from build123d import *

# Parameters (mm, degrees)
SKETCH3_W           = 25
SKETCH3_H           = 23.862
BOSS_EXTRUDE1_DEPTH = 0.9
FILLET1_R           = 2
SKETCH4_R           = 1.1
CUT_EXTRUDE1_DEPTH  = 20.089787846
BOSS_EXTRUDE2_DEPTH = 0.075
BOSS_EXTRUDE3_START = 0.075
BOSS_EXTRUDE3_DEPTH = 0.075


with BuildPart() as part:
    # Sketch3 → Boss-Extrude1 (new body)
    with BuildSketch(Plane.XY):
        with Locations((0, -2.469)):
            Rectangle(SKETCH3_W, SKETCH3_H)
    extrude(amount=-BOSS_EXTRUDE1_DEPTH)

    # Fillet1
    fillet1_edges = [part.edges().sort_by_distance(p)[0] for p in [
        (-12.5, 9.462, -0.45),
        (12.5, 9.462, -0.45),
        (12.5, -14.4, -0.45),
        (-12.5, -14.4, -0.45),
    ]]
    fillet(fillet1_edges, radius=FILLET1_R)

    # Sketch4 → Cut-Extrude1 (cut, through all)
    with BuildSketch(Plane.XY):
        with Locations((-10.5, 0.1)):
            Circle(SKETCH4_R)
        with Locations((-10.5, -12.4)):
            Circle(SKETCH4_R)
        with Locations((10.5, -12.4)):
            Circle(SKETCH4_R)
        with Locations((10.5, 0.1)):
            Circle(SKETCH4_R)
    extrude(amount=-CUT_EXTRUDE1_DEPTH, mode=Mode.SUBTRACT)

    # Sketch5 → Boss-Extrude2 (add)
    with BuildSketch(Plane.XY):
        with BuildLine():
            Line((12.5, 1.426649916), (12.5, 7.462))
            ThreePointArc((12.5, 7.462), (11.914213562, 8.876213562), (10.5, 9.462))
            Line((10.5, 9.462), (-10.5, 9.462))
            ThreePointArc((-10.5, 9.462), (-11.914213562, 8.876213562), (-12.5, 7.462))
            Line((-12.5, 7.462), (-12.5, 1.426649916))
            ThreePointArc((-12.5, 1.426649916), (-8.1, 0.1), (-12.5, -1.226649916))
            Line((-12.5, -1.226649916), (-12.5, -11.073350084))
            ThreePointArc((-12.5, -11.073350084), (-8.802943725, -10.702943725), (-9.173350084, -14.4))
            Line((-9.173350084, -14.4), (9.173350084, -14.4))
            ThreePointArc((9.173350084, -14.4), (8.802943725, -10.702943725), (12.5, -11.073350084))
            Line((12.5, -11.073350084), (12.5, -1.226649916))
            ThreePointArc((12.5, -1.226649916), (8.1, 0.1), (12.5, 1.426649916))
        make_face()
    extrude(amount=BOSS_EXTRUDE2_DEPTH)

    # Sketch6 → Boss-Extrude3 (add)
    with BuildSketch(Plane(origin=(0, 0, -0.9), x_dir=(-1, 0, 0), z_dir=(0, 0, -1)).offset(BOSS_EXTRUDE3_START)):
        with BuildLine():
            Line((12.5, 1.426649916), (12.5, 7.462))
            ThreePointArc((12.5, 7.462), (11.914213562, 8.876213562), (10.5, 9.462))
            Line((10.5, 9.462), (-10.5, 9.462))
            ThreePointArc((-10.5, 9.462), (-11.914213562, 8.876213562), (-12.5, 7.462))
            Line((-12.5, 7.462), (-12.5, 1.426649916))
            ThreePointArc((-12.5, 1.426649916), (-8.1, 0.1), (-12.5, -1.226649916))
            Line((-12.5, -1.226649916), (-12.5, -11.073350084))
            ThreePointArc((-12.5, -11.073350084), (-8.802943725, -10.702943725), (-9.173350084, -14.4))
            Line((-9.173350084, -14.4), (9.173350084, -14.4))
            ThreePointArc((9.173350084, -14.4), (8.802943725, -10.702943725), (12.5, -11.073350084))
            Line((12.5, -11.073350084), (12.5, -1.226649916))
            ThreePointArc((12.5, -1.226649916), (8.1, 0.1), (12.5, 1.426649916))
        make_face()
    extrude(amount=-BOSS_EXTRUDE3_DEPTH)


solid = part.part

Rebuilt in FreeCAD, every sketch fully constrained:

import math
import FreeCAD as App
import Part
import Sketcher
from FreeCAD import Vector


def edges_at(feature, points):
    """Names of the edges that pass closest to the given points."""
    edges = feature.Shape.Edges
    near = lambda p: min(range(len(edges)), key=lambda i: edges[i].distToShape(Part.Vertex(*p))[0])
    return sorted({f"Edge{near(p) + 1}" for p in points})

doc = App.newDocument("Part")
params = doc.addObject("Spreadsheet::Sheet", "Params")
for row, (alias, value) in enumerate([
    ("sketch1_width", "25 mm"),
    ("pad1_length", "0.9 mm"),
    ("fillet_radius", "2 mm"),
    ("sketch2_diameter", "2.2 mm"),
    ("sketch3_radius", "2 mm"),
    ("sketch3_radius2", "2.4 mm"),
    ("sketch3_width", "21 mm"),
    ("sketch3_height", "2 mm"),
    ("pad2_length", "0.075 mm"),
    ("sketch4_radius", "2 mm"),
    ("sketch4_radius2", "2.4 mm"),
    ("sketch4_width", "21 mm"),
    ("sketch4_height", "2 mm"),
    ("pad3_length", "0.075 mm"),
], start=1):
    params.set(f"A{row}", alias)
    params.set(f"B{row}", "=" + value)
    params.setAlias(f"B{row}", alias)

body = doc.addObject("PartDesign::Body", "Body")

# Sketch on XY plane
sketch1 = body.newObject("Sketcher::SketchObject", "Sketch")
sketch1.AttachmentSupport = (doc.getObject("XY_Plane"), [""])
sketch1.MapMode = "FlatFace"
sketch1.addGeometry(Part.LineSegment(Vector(-12, 9, 0), Vector(-12, -14, 0)), False)
sketch1.addGeometry(Part.LineSegment(Vector(-12, -14, 0), Vector(12, -14, 0)), False)
sketch1.addGeometry(Part.LineSegment(Vector(12, -14, 0), Vector(12, 9, 0)), False)
sketch1.addGeometry(Part.LineSegment(Vector(12, 9, 0), Vector(-12, 9, 0)), False)
sketch1.addConstraint(Sketcher.Constraint("Coincident", 0, 2, 1, 1))
sketch1.addConstraint(Sketcher.Constraint("Coincident", 1, 2, 2, 1))
sketch1.addConstraint(Sketcher.Constraint("Coincident", 2, 2, 3, 1))
sketch1.addConstraint(Sketcher.Constraint("Coincident", 3, 2, 0, 1))
sketch1.addConstraint(Sketcher.Constraint("Vertical", 0))
sketch1.addConstraint(Sketcher.Constraint("Horizontal", 1))
sketch1.addConstraint(Sketcher.Constraint("Vertical", 2))
sketch1.addConstraint(Sketcher.Constraint("Horizontal", 3))
sketch1.addConstraint(Sketcher.Constraint("DistanceX", 1, 1, 1, 2, 25.0))
sketch1.addConstraint(Sketcher.Constraint("DistanceX", 0, 2, -1, 1, 12.5))
sketch1.addConstraint(Sketcher.Constraint("DistanceY", 0, 2, -1, 1, 14.4))
sketch1.addConstraint(Sketcher.Constraint("DistanceY", 0, 2, 0, 1, 23.862))
sketch1.setExpression("Constraints[8]", "Params.sketch1_width")
pad1 = body.newObject("PartDesign::Pad", "Pad")
pad1.Profile = sketch1
pad1.setExpression("Length", "Params.pad1_length")
pad1.Reversed = True
doc.recompute()

fillet = body.newObject("PartDesign::Fillet", "Fillet")
fillet.Base = (pad1, edges_at(pad1, [
    (-12.5, 9.462, -0.45),
    (12.5, 9.462, -0.45),
    (12.5, -14.4, -0.45),
    (-12.5, -14.4, -0.45),
]))
fillet.setExpression("Radius", "Params.fillet_radius")

# Sketch on XY plane
sketch2 = body.newObject("Sketcher::SketchObject", "Sketch001")
sketch2.AttachmentSupport = (doc.getObject("XY_Plane"), [""])
sketch2.MapMode = "FlatFace"
sketch2.addGeometry(Part.Circle(Vector(-10.5, 0.1, 0), Vector(0, 0, 1), 1.1), False)
sketch2.addGeometry(Part.Circle(Vector(-10.5, -12.4, 0), Vector(0, 0, 1), 1.1), False)
sketch2.addGeometry(Part.Circle(Vector(10.5, -12.4, 0), Vector(0, 0, 1), 1.1), False)
sketch2.addGeometry(Part.Circle(Vector(10.5, 0.1, 0), Vector(0, 0, 1), 1.1), False)
sketch2.addConstraint(Sketcher.Constraint("Equal", 0, 1))
sketch2.addConstraint(Sketcher.Constraint("Equal", 1, 2))
sketch2.addConstraint(Sketcher.Constraint("Equal", 2, 3))
sketch2.addConstraint(Sketcher.Constraint("Symmetric", 1, 3, 2, 3, -2))
sketch2.addConstraint(Sketcher.Constraint("Symmetric", 0, 3, 3, 3, -2))
sketch2.addConstraint(Sketcher.Constraint("Vertical", 0, 3, 1, 3))
sketch2.addConstraint(Sketcher.Constraint("Diameter", 0, 2.2))
sketch2.addConstraint(Sketcher.Constraint("DistanceX", 1, 3, 2, 3, 21.0))
sketch2.addConstraint(Sketcher.Constraint("DistanceY", -1, 1, 0, 3, 0.1))
sketch2.addConstraint(Sketcher.Constraint("DistanceY", 1, 3, -1, 1, 12.4))
sketch2.setExpression("Constraints[6]", "Params.sketch2_diameter")
pocket1 = body.newObject("PartDesign::Pocket", "Pocket")
pocket1.Profile = sketch2
pocket1.Type = "ThroughAll"

# Sketch on XY plane
sketch3 = body.newObject("Sketcher::SketchObject", "Sketch002")
sketch3.AttachmentSupport = (doc.getObject("XY_Plane"), [""])
sketch3.MapMode = "FlatFace"
sketch3.addGeometry(Part.LineSegment(Vector(12.5, 1.4, 0), Vector(12.5, 7.5, 0)), False)
sketch3.addGeometry(Part.ArcOfCircle(Part.Circle(Vector(10.5, 7.5, 0), Vector(0, 0, 1), 2), math.radians(0), math.radians(90)), False)
sketch3.addGeometry(Part.LineSegment(Vector(10.5, 9.5, 0), Vector(-10.5, 9.5, 0)), False)
sketch3.addGeometry(Part.ArcOfCircle(Part.Circle(Vector(-10.5, 7.5, 0), Vector(0, 0, 1), 2), math.radians(90), math.radians(180)), False)
sketch3.addGeometry(Part.LineSegment(Vector(-12.5, 7.5, 0), Vector(-12.5, 1.4, 0)), False)
sketch3.addGeometry(Part.ArcOfCircle(Part.Circle(Vector(-10.5, 0.1, 0), Vector(0, 0, 1), 2.4), math.radians(-146), math.radians(146)), False)
sketch3.addGeometry(Part.LineSegment(Vector(-12.5, -1.2, 0), Vector(-12.5, -11.1, 0)), False)
sketch3.addGeometry(Part.ArcOfCircle(Part.Circle(Vector(-10.5, -12.4, 0), Vector(0, 0, 1), 2.4), math.radians(-56), math.radians(146)), False)
sketch3.addGeometry(Part.LineSegment(Vector(-9.2, -14.4, 0), Vector(9.2, -14.4, 0)), False)
sketch3.addGeometry(Part.ArcOfCircle(Part.Circle(Vector(10.5, -12.4, 0), Vector(0, 0, 1), 2.4), math.radians(34), math.radians(236)), False)
sketch3.addGeometry(Part.LineSegment(Vector(12.5, -11.1, 0), Vector(12.5, -1.2, 0)), False)
sketch3.addGeometry(Part.ArcOfCircle(Part.Circle(Vector(10.5, 0.1, 0), Vector(0, 0, 1), 2.4), math.radians(34), math.radians(326)), False)
sketch3.addConstraint(Sketcher.Constraint("Tangent", 0, 2, 1, 1))
sketch3.addConstraint(Sketcher.Constraint("Tangent", 1, 2, 2, 1))
sketch3.addConstraint(Sketcher.Constraint("Tangent", 2, 2, 3, 1))
sketch3.addConstraint(Sketcher.Constraint("Tangent", 3, 2, 4, 1))
sketch3.addConstraint(Sketcher.Constraint("Coincident", 4, 2, 5, 2))
sketch3.addConstraint(Sketcher.Constraint("Coincident", 5, 1, 6, 1))
sketch3.addConstraint(Sketcher.Constraint("Coincident", 6, 2, 7, 2))
sketch3.addConstraint(Sketcher.Constraint("Coincident", 7, 1, 8, 1))
sketch3.addConstraint(Sketcher.Constraint("Coincident", 8, 2, 9, 2))
sketch3.addConstraint(Sketcher.Constraint("Coincident", 9, 1, 10, 1))
sketch3.addConstraint(Sketcher.Constraint("Coincident", 10, 2, 11, 2))
sketch3.addConstraint(Sketcher.Constraint("Coincident", 11, 1, 0, 1))
sketch3.addConstraint(Sketcher.Constraint("Vertical", 0))
sketch3.addConstraint(Sketcher.Constraint("Horizontal", 2))
sketch3.addConstraint(Sketcher.Constraint("Vertical", 4))
sketch3.addConstraint(Sketcher.Constraint("Vertical", 6))
sketch3.addConstraint(Sketcher.Constraint("Horizontal", 8))
sketch3.addConstraint(Sketcher.Constraint("Vertical", 10))
sketch3.addConstraint(Sketcher.Constraint("Equal", 1, 3))
sketch3.addConstraint(Sketcher.Constraint("Equal", 5, 7))
sketch3.addConstraint(Sketcher.Constraint("Equal", 7, 9))
sketch3.addConstraint(Sketcher.Constraint("Equal", 9, 11))
sketch3.addConstraint(Sketcher.Constraint("Symmetric", 7, 3, 9, 3, -2))
sketch3.addConstraint(Sketcher.Constraint("Symmetric", 5, 3, 11, 3, -2))
sketch3.addConstraint(Sketcher.Constraint("Horizontal", 6, 2, 9, 1))
sketch3.addConstraint(Sketcher.Constraint("Horizontal", 4, 2, 11, 1))
sketch3.addConstraint(Sketcher.Constraint("Vertical", 3, 3, 5, 3))
sketch3.addConstraint(Sketcher.Constraint("Vertical", 5, 3, 7, 3))
sketch3.addConstraint(Sketcher.Constraint("Vertical", 4, 2, 5, 1))
sketch3.addConstraint(Sketcher.Constraint("Radius", 1, 2.0))
sketch3.addConstraint(Sketcher.Constraint("Radius", 5, 2.4))
sketch3.addConstraint(Sketcher.Constraint("DistanceX", 2, 2, 2, 1, 21.0))
sketch3.addConstraint(Sketcher.Constraint("DistanceY", 7, 1, 7, 3, 2.0))
sketch3.addConstraint(Sketcher.Constraint("DistanceY", -1, 1, 5, 3, 0.1))
sketch3.addConstraint(Sketcher.Constraint("DistanceY", 7, 3, -1, 1, 12.4))
sketch3.addConstraint(Sketcher.Constraint("DistanceY", -1, 1, 1, 3, 7.462))
sketch3.setExpression("Constraints[29]", "Params.sketch3_radius")
sketch3.setExpression("Constraints[30]", "Params.sketch3_radius2")
sketch3.setExpression("Constraints[31]", "Params.sketch3_width")
sketch3.setExpression("Constraints[32]", "Params.sketch3_height")
pad2 = body.newObject("PartDesign::Pad", "Pad001")
pad2.Profile = sketch3
pad2.setExpression("Length", "Params.pad2_length")

# Sketch on XY plane
sketch4 = body.newObject("Sketcher::SketchObject", "Sketch003")
sketch4.AttachmentSupport = (doc.getObject("XY_Plane"), [""])
sketch4.MapMode = "FlatFace"
sketch4.AttachmentOffset = App.Placement(Vector(0, 0, -0.975), App.Rotation())
sketch4.addGeometry(Part.LineSegment(Vector(-12.5, 1.4, 0), Vector(-12.5, 7.5, 0)), False)
sketch4.addGeometry(Part.ArcOfCircle(Part.Circle(Vector(-10.5, 7.5, 0), Vector(0, 0, 1), 2), math.radians(90), math.radians(180)), False)
sketch4.addGeometry(Part.LineSegment(Vector(-10.5, 9.5, 0), Vector(10.5, 9.5, 0)), False)
sketch4.addGeometry(Part.ArcOfCircle(Part.Circle(Vector(10.5, 7.5, 0), Vector(0, 0, 1), 2), math.radians(0), math.radians(90)), False)
sketch4.addGeometry(Part.LineSegment(Vector(12.5, 7.5, 0), Vector(12.5, 1.4, 0)), False)
sketch4.addGeometry(Part.ArcOfCircle(Part.Circle(Vector(10.5, 0.1, 0), Vector(0, 0, 1), 2.4), math.radians(34), math.radians(326)), False)
sketch4.addGeometry(Part.LineSegment(Vector(12.5, -1.2, 0), Vector(12.5, -11.1, 0)), False)
sketch4.addGeometry(Part.ArcOfCircle(Part.Circle(Vector(10.5, -12.4, 0), Vector(0, 0, 1), 2.4), math.radians(34), math.radians(236)), False)
sketch4.addGeometry(Part.LineSegment(Vector(9.2, -14.4, 0), Vector(-9.2, -14.4, 0)), False)
sketch4.addGeometry(Part.ArcOfCircle(Part.Circle(Vector(-10.5, -12.4, 0), Vector(0, 0, 1), 2.4), math.radians(-56), math.radians(146)), False)
sketch4.addGeometry(Part.LineSegment(Vector(-12.5, -11.1, 0), Vector(-12.5, -1.2, 0)), False)
sketch4.addGeometry(Part.ArcOfCircle(Part.Circle(Vector(-10.5, 0.1, 0), Vector(0, 0, 1), 2.4), math.radians(-146), math.radians(146)), False)
sketch4.addConstraint(Sketcher.Constraint("Tangent", 0, 2, 1, 2))
sketch4.addConstraint(Sketcher.Constraint("Tangent", 1, 1, 2, 1))
sketch4.addConstraint(Sketcher.Constraint("Tangent", 2, 2, 3, 2))
sketch4.addConstraint(Sketcher.Constraint("Tangent", 3, 1, 4, 1))
sketch4.addConstraint(Sketcher.Constraint("Coincident", 4, 2, 5, 1))
sketch4.addConstraint(Sketcher.Constraint("Coincident", 5, 2, 6, 1))
sketch4.addConstraint(Sketcher.Constraint("Coincident", 6, 2, 7, 1))
sketch4.addConstraint(Sketcher.Constraint("Coincident", 7, 2, 8, 1))
sketch4.addConstraint(Sketcher.Constraint("Coincident", 8, 2, 9, 1))
sketch4.addConstraint(Sketcher.Constraint("Coincident", 9, 2, 10, 1))
sketch4.addConstraint(Sketcher.Constraint("Coincident", 10, 2, 11, 1))
sketch4.addConstraint(Sketcher.Constraint("Coincident", 11, 2, 0, 1))
sketch4.addConstraint(Sketcher.Constraint("Vertical", 0))
sketch4.addConstraint(Sketcher.Constraint("Horizontal", 2))
sketch4.addConstraint(Sketcher.Constraint("Vertical", 4))
sketch4.addConstraint(Sketcher.Constraint("Vertical", 6))
sketch4.addConstraint(Sketcher.Constraint("Horizontal", 8))
sketch4.addConstraint(Sketcher.Constraint("Vertical", 10))
sketch4.addConstraint(Sketcher.Constraint("Equal", 1, 3))
sketch4.addConstraint(Sketcher.Constraint("Equal", 5, 7))
sketch4.addConstraint(Sketcher.Constraint("Equal", 7, 9))
sketch4.addConstraint(Sketcher.Constraint("Equal", 9, 11))
sketch4.addConstraint(Sketcher.Constraint("Symmetric", 7, 3, 9, 3, -2))
sketch4.addConstraint(Sketcher.Constraint("Symmetric", 5, 3, 11, 3, -2))
sketch4.addConstraint(Sketcher.Constraint("Horizontal", 6, 2, 9, 2))
sketch4.addConstraint(Sketcher.Constraint("Horizontal", 4, 2, 11, 2))
sketch4.addConstraint(Sketcher.Constraint("Vertical", 3, 3, 5, 3))
sketch4.addConstraint(Sketcher.Constraint("Vertical", 5, 3, 7, 3))
sketch4.addConstraint(Sketcher.Constraint("Vertical", 4, 2, 5, 2))
sketch4.addConstraint(Sketcher.Constraint("Radius", 1, 2.0))
sketch4.addConstraint(Sketcher.Constraint("Radius", 5, 2.4))
sketch4.addConstraint(Sketcher.Constraint("DistanceX", 2, 1, 2, 2, 21.0))
sketch4.addConstraint(Sketcher.Constraint("DistanceY", 7, 2, 7, 3, 2.0))
sketch4.addConstraint(Sketcher.Constraint("DistanceY", -1, 1, 5, 3, 0.1))
sketch4.addConstraint(Sketcher.Constraint("DistanceY", 7, 3, -1, 1, 12.4))
sketch4.addConstraint(Sketcher.Constraint("DistanceY", -1, 1, 1, 3, 7.462))
sketch4.setExpression("Constraints[29]", "Params.sketch4_radius")
sketch4.setExpression("Constraints[30]", "Params.sketch4_radius2")
sketch4.setExpression("Constraints[31]", "Params.sketch4_width")
sketch4.setExpression("Constraints[32]", "Params.sketch4_height")
pad3 = body.newObject("PartDesign::Pad", "Pad002")
pad3.Profile = sketch4
pad3.setExpression("Length", "Params.pad3_length")

doc.recompute()
